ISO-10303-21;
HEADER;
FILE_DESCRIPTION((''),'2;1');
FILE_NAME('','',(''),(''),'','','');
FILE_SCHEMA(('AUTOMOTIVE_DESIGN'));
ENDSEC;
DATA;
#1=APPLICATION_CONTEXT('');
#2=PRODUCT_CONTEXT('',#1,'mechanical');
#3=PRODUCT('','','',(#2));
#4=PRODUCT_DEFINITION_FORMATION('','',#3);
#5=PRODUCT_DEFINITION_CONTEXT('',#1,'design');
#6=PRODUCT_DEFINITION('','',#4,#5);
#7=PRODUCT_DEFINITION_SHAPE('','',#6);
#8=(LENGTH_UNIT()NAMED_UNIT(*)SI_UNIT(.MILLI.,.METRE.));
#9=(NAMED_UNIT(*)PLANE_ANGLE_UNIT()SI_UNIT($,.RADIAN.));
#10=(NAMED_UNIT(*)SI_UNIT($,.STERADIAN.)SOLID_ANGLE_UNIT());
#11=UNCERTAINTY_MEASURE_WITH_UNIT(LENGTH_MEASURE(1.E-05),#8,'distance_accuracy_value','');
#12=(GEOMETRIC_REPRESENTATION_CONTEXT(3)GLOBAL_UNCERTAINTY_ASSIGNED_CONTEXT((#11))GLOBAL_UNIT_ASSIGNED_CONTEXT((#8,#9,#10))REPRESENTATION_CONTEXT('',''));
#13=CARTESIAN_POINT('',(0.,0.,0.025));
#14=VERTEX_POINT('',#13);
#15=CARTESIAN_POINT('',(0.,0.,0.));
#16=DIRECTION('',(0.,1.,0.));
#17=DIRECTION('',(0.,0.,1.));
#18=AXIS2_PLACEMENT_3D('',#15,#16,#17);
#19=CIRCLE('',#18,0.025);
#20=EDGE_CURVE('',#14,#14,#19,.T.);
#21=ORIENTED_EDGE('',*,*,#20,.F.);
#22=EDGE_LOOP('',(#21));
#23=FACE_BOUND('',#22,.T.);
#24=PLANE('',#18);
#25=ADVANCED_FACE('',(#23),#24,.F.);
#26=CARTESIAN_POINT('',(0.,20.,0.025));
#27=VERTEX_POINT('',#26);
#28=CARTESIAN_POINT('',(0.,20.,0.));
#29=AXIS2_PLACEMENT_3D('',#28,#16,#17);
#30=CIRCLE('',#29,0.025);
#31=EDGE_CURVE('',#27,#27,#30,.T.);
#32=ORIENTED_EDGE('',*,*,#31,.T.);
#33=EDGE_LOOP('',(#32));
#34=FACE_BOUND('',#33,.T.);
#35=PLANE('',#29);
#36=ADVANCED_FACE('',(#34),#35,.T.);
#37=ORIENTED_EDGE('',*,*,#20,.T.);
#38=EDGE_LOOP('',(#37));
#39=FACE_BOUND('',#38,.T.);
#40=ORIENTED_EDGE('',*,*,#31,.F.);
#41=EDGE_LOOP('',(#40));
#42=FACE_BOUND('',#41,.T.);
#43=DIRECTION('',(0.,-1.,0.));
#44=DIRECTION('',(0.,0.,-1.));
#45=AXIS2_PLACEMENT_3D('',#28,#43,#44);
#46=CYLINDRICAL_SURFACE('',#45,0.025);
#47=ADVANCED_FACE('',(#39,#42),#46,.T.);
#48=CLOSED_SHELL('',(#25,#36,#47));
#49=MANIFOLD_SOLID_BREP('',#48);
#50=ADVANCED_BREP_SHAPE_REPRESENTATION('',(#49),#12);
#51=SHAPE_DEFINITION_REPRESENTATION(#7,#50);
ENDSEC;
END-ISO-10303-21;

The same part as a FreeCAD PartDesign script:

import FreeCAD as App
import Part
import Sketcher

V = App.Vector
Q = App.Units.Quantity

doc = App.newDocument("Part")
params = doc.addObject("Spreadsheet::Sheet", "Params")
for row, (alias, value) in enumerate([
    ("sketch1_diameter", "0.05 mm"),
    ("pad1_length", "20 mm"),
], start=1):
    params.set(f"A{row}", alias)
    params.set(f"B{row}", "=" + value)
    params.setAlias(f"B{row}", alias)

body = doc.addObject("PartDesign::Body", "Body")

# Sketch on XZ plane
sketch1 = doc.addObject("Sketcher::SketchObject", "Sketch")
body.addObject(sketch1)
sketch1.AttachmentSupport = (doc.XZ_Plane, [""])
sketch1.MapMode = "FlatFace"
sketch1.addGeometry(Part.Circle(V(0, 0, 0), V(0, 0, 1), 0.025), False)
sketch1.addConstraint(Sketcher.Constraint("Coincident", 0, 3, -1, 1))
sketch1.addConstraint(Sketcher.Constraint("Diameter", 0, Q("0.05 mm")))
sketch1.setExpression("Constraints[1]", "Params.sketch1_diameter")
pad1 = doc.addObject("PartDesign::Pad", "Pad")
body.addObject(pad1)
pad1.Profile = sketch1
pad1.setExpression("Length", "Params.pad1_length")
pad1.Reversed = True

doc.recompute()
